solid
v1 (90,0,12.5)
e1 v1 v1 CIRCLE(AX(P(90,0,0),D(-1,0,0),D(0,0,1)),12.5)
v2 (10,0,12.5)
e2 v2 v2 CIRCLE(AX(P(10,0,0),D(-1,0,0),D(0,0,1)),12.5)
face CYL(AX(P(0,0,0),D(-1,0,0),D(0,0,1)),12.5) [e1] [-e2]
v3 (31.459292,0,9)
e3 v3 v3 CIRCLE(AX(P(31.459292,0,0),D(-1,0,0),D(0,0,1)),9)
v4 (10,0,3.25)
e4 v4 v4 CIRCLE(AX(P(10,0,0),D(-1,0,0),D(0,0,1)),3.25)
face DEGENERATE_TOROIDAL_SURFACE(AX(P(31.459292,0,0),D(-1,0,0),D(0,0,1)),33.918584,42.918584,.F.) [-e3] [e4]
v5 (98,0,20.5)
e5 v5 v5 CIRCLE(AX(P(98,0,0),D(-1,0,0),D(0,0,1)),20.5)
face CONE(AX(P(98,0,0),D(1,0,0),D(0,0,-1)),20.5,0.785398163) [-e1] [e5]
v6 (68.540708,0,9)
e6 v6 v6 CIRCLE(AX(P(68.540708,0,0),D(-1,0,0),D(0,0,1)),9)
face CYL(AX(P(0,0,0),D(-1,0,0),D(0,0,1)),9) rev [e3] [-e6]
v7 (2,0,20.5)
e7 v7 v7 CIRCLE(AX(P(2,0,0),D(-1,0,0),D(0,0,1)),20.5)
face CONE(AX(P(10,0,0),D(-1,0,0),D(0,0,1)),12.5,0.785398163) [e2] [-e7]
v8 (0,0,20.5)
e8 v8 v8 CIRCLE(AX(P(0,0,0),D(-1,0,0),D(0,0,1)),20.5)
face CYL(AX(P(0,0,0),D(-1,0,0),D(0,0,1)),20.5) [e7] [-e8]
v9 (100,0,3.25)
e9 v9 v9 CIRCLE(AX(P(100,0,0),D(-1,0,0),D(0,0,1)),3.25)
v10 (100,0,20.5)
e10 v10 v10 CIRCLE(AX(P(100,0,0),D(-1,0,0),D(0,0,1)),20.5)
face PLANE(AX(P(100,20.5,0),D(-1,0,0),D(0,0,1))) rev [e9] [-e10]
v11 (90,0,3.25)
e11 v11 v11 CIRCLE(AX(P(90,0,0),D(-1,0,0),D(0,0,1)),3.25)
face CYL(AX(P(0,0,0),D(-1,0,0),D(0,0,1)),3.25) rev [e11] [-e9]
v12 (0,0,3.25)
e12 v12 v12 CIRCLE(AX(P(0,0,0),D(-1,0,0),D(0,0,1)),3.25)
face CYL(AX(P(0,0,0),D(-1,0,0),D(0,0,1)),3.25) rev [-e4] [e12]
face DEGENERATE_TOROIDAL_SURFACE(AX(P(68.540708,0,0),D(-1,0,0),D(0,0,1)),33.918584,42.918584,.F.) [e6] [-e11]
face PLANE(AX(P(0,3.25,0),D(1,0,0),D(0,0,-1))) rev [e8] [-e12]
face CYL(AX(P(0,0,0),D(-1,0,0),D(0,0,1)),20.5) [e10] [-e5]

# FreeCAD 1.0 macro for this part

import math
import FreeCAD as App
import Part
import Sketcher

V = App.Vector
Q = App.Units.Quantity

doc = App.newDocument("Part")
body = doc.addObject("PartDesign::Body", "Body")

# Sketch on XY plane
sketch1 = body.newObject("Sketcher::SketchObject", "Sketch")
sketch1.AttachmentSupport = (doc.getObject("XY_Plane"), [""])
sketch1.MapMode = "FlatFace"
sketch1.addGeometry([
    Part.LineSegment(V(0, 3.2, 0), V(10, 3.2, 0)),  # 0
    Part.ArcOfCircle(Part.Circle(V(31.5, -33.9, 0), V(0, 0, 1), 42.9), math.radians(90), math.radians(120)),  # 1
    Part.LineSegment(V(31.5, 9, 0), V(68.5, 9, 0)),  # 2
    Part.ArcOfCircle(Part.Circle(V(68.5, -33.9, 0), V(0, 0, 1), 42.9), math.radians(60), math.radians(90)),  # 3
    Part.LineSegment(V(90, 3.2, 0), V(100, 3.2, 0)),  # 4
    Part.LineSegment(V(100, 3.2, 0), V(100, 20.5, 0)),  # 5
    Part.LineSegment(V(100, 20.5, 0), V(98, 20.5, 0)),  # 6
    Part.LineSegment(V(98, 20.5, 0), V(90, 12.5, 0)),  # 7
    Part.LineSegment(V(90, 12.5, 0), V(10, 12.5, 0)),  # 8
    Part.LineSegment(V(10, 12.5, 0), V(2, 20.5, 0)),  # 9
    Part.LineSegment(V(2, 20.5, 0), V(0, 20.5, 0)),  # 10
    Part.LineSegment(V(0, 20.5, 0), V(0, 3.2, 0)),  # 11
], False)
sketch1.addConstraint([
    Sketcher.Constraint("Coincident", 0, 2, 1, 2),
    Sketcher.Constraint("Tangent", 1, 1, 2, 1),
    Sketcher.Constraint("Tangent", 2, 2, 3, 2),
    Sketcher.Constraint("Coincident", 3, 1, 4, 1),
    Sketcher.Constraint("Coincident", 4, 2, 5, 1),
    Sketcher.Constraint("Coincident", 5, 2, 6, 1),
    Sketcher.Constraint("Coincident", 6, 2, 7, 1),
    Sketcher.Constraint("Coincident", 7, 2, 8, 1),
    Sketcher.Constraint("Coincident", 8, 2, 9, 1),
    Sketcher.Constraint("Coincident", 9, 2, 10, 1),
    Sketcher.Constraint("Coincident", 10, 2, 11, 1),
    Sketcher.Constraint("Coincident", 11, 2, 0, 1),
    Sketcher.Constraint("Horizontal", 0),
    Sketcher.Constraint("Horizontal", 2),
    Sketcher.Constraint("Horizontal", 4),
    Sketcher.Constraint("Vertical", 5),
    Sketcher.Constraint("Horizontal", 6),
    Sketcher.Constraint("Horizontal", 8),
    Sketcher.Constraint("Horizontal", 10),
    Sketcher.Constraint("Vertical", 11),
    Sketcher.Constraint("Equal", 1, 3),
    Sketcher.Constraint("PointOnObject", 10, 2, -2),
    Sketcher.Constraint("Perpendicular", 7, 9),
    Sketcher.Constraint("Horizontal", 0, 2, 3, 1),
    Sketcher.Constraint("Horizontal", 6, 2, 9, 2),
    Sketcher.Constraint("Vertical", 3, 1, 7, 2),
    Sketcher.Constraint("Vertical", 0, 2, 8, 2),
    Sketcher.Constraint("Equal", 0, 4),
    Sketcher.Constraint("Equal", 6, 10),
    Sketcher.Constraint("DistanceX", 0, 1, 0, 2, Q("10 mm")),
    Sketcher.Constraint("DistanceX", 6, 2, 6, 1, Q("2 mm")),
    Sketcher.Constraint("DistanceX", 8, 2, 8, 1, Q("80 mm")),
    Sketcher.Constraint("DistanceY", -1, 1, 1, 1, Q("9 mm")),
    Sketcher.Constraint("DistanceY", 5, 1, 5, 2, Q("17.25 mm")),
    Sketcher.Constraint("DistanceY", -1, 1, 5, 2, Q("20.5 mm")),
    Sketcher.Constraint("Radius", 1, Q("42.918584 mm")),
])
revolution = body.newObject("PartDesign::Revolution", "Revolution")
revolution.Profile = sketch1
revolution.ReferenceAxis = (sketch1, ["H_Axis"])
revolution.Angle = 360

doc.recompute()
